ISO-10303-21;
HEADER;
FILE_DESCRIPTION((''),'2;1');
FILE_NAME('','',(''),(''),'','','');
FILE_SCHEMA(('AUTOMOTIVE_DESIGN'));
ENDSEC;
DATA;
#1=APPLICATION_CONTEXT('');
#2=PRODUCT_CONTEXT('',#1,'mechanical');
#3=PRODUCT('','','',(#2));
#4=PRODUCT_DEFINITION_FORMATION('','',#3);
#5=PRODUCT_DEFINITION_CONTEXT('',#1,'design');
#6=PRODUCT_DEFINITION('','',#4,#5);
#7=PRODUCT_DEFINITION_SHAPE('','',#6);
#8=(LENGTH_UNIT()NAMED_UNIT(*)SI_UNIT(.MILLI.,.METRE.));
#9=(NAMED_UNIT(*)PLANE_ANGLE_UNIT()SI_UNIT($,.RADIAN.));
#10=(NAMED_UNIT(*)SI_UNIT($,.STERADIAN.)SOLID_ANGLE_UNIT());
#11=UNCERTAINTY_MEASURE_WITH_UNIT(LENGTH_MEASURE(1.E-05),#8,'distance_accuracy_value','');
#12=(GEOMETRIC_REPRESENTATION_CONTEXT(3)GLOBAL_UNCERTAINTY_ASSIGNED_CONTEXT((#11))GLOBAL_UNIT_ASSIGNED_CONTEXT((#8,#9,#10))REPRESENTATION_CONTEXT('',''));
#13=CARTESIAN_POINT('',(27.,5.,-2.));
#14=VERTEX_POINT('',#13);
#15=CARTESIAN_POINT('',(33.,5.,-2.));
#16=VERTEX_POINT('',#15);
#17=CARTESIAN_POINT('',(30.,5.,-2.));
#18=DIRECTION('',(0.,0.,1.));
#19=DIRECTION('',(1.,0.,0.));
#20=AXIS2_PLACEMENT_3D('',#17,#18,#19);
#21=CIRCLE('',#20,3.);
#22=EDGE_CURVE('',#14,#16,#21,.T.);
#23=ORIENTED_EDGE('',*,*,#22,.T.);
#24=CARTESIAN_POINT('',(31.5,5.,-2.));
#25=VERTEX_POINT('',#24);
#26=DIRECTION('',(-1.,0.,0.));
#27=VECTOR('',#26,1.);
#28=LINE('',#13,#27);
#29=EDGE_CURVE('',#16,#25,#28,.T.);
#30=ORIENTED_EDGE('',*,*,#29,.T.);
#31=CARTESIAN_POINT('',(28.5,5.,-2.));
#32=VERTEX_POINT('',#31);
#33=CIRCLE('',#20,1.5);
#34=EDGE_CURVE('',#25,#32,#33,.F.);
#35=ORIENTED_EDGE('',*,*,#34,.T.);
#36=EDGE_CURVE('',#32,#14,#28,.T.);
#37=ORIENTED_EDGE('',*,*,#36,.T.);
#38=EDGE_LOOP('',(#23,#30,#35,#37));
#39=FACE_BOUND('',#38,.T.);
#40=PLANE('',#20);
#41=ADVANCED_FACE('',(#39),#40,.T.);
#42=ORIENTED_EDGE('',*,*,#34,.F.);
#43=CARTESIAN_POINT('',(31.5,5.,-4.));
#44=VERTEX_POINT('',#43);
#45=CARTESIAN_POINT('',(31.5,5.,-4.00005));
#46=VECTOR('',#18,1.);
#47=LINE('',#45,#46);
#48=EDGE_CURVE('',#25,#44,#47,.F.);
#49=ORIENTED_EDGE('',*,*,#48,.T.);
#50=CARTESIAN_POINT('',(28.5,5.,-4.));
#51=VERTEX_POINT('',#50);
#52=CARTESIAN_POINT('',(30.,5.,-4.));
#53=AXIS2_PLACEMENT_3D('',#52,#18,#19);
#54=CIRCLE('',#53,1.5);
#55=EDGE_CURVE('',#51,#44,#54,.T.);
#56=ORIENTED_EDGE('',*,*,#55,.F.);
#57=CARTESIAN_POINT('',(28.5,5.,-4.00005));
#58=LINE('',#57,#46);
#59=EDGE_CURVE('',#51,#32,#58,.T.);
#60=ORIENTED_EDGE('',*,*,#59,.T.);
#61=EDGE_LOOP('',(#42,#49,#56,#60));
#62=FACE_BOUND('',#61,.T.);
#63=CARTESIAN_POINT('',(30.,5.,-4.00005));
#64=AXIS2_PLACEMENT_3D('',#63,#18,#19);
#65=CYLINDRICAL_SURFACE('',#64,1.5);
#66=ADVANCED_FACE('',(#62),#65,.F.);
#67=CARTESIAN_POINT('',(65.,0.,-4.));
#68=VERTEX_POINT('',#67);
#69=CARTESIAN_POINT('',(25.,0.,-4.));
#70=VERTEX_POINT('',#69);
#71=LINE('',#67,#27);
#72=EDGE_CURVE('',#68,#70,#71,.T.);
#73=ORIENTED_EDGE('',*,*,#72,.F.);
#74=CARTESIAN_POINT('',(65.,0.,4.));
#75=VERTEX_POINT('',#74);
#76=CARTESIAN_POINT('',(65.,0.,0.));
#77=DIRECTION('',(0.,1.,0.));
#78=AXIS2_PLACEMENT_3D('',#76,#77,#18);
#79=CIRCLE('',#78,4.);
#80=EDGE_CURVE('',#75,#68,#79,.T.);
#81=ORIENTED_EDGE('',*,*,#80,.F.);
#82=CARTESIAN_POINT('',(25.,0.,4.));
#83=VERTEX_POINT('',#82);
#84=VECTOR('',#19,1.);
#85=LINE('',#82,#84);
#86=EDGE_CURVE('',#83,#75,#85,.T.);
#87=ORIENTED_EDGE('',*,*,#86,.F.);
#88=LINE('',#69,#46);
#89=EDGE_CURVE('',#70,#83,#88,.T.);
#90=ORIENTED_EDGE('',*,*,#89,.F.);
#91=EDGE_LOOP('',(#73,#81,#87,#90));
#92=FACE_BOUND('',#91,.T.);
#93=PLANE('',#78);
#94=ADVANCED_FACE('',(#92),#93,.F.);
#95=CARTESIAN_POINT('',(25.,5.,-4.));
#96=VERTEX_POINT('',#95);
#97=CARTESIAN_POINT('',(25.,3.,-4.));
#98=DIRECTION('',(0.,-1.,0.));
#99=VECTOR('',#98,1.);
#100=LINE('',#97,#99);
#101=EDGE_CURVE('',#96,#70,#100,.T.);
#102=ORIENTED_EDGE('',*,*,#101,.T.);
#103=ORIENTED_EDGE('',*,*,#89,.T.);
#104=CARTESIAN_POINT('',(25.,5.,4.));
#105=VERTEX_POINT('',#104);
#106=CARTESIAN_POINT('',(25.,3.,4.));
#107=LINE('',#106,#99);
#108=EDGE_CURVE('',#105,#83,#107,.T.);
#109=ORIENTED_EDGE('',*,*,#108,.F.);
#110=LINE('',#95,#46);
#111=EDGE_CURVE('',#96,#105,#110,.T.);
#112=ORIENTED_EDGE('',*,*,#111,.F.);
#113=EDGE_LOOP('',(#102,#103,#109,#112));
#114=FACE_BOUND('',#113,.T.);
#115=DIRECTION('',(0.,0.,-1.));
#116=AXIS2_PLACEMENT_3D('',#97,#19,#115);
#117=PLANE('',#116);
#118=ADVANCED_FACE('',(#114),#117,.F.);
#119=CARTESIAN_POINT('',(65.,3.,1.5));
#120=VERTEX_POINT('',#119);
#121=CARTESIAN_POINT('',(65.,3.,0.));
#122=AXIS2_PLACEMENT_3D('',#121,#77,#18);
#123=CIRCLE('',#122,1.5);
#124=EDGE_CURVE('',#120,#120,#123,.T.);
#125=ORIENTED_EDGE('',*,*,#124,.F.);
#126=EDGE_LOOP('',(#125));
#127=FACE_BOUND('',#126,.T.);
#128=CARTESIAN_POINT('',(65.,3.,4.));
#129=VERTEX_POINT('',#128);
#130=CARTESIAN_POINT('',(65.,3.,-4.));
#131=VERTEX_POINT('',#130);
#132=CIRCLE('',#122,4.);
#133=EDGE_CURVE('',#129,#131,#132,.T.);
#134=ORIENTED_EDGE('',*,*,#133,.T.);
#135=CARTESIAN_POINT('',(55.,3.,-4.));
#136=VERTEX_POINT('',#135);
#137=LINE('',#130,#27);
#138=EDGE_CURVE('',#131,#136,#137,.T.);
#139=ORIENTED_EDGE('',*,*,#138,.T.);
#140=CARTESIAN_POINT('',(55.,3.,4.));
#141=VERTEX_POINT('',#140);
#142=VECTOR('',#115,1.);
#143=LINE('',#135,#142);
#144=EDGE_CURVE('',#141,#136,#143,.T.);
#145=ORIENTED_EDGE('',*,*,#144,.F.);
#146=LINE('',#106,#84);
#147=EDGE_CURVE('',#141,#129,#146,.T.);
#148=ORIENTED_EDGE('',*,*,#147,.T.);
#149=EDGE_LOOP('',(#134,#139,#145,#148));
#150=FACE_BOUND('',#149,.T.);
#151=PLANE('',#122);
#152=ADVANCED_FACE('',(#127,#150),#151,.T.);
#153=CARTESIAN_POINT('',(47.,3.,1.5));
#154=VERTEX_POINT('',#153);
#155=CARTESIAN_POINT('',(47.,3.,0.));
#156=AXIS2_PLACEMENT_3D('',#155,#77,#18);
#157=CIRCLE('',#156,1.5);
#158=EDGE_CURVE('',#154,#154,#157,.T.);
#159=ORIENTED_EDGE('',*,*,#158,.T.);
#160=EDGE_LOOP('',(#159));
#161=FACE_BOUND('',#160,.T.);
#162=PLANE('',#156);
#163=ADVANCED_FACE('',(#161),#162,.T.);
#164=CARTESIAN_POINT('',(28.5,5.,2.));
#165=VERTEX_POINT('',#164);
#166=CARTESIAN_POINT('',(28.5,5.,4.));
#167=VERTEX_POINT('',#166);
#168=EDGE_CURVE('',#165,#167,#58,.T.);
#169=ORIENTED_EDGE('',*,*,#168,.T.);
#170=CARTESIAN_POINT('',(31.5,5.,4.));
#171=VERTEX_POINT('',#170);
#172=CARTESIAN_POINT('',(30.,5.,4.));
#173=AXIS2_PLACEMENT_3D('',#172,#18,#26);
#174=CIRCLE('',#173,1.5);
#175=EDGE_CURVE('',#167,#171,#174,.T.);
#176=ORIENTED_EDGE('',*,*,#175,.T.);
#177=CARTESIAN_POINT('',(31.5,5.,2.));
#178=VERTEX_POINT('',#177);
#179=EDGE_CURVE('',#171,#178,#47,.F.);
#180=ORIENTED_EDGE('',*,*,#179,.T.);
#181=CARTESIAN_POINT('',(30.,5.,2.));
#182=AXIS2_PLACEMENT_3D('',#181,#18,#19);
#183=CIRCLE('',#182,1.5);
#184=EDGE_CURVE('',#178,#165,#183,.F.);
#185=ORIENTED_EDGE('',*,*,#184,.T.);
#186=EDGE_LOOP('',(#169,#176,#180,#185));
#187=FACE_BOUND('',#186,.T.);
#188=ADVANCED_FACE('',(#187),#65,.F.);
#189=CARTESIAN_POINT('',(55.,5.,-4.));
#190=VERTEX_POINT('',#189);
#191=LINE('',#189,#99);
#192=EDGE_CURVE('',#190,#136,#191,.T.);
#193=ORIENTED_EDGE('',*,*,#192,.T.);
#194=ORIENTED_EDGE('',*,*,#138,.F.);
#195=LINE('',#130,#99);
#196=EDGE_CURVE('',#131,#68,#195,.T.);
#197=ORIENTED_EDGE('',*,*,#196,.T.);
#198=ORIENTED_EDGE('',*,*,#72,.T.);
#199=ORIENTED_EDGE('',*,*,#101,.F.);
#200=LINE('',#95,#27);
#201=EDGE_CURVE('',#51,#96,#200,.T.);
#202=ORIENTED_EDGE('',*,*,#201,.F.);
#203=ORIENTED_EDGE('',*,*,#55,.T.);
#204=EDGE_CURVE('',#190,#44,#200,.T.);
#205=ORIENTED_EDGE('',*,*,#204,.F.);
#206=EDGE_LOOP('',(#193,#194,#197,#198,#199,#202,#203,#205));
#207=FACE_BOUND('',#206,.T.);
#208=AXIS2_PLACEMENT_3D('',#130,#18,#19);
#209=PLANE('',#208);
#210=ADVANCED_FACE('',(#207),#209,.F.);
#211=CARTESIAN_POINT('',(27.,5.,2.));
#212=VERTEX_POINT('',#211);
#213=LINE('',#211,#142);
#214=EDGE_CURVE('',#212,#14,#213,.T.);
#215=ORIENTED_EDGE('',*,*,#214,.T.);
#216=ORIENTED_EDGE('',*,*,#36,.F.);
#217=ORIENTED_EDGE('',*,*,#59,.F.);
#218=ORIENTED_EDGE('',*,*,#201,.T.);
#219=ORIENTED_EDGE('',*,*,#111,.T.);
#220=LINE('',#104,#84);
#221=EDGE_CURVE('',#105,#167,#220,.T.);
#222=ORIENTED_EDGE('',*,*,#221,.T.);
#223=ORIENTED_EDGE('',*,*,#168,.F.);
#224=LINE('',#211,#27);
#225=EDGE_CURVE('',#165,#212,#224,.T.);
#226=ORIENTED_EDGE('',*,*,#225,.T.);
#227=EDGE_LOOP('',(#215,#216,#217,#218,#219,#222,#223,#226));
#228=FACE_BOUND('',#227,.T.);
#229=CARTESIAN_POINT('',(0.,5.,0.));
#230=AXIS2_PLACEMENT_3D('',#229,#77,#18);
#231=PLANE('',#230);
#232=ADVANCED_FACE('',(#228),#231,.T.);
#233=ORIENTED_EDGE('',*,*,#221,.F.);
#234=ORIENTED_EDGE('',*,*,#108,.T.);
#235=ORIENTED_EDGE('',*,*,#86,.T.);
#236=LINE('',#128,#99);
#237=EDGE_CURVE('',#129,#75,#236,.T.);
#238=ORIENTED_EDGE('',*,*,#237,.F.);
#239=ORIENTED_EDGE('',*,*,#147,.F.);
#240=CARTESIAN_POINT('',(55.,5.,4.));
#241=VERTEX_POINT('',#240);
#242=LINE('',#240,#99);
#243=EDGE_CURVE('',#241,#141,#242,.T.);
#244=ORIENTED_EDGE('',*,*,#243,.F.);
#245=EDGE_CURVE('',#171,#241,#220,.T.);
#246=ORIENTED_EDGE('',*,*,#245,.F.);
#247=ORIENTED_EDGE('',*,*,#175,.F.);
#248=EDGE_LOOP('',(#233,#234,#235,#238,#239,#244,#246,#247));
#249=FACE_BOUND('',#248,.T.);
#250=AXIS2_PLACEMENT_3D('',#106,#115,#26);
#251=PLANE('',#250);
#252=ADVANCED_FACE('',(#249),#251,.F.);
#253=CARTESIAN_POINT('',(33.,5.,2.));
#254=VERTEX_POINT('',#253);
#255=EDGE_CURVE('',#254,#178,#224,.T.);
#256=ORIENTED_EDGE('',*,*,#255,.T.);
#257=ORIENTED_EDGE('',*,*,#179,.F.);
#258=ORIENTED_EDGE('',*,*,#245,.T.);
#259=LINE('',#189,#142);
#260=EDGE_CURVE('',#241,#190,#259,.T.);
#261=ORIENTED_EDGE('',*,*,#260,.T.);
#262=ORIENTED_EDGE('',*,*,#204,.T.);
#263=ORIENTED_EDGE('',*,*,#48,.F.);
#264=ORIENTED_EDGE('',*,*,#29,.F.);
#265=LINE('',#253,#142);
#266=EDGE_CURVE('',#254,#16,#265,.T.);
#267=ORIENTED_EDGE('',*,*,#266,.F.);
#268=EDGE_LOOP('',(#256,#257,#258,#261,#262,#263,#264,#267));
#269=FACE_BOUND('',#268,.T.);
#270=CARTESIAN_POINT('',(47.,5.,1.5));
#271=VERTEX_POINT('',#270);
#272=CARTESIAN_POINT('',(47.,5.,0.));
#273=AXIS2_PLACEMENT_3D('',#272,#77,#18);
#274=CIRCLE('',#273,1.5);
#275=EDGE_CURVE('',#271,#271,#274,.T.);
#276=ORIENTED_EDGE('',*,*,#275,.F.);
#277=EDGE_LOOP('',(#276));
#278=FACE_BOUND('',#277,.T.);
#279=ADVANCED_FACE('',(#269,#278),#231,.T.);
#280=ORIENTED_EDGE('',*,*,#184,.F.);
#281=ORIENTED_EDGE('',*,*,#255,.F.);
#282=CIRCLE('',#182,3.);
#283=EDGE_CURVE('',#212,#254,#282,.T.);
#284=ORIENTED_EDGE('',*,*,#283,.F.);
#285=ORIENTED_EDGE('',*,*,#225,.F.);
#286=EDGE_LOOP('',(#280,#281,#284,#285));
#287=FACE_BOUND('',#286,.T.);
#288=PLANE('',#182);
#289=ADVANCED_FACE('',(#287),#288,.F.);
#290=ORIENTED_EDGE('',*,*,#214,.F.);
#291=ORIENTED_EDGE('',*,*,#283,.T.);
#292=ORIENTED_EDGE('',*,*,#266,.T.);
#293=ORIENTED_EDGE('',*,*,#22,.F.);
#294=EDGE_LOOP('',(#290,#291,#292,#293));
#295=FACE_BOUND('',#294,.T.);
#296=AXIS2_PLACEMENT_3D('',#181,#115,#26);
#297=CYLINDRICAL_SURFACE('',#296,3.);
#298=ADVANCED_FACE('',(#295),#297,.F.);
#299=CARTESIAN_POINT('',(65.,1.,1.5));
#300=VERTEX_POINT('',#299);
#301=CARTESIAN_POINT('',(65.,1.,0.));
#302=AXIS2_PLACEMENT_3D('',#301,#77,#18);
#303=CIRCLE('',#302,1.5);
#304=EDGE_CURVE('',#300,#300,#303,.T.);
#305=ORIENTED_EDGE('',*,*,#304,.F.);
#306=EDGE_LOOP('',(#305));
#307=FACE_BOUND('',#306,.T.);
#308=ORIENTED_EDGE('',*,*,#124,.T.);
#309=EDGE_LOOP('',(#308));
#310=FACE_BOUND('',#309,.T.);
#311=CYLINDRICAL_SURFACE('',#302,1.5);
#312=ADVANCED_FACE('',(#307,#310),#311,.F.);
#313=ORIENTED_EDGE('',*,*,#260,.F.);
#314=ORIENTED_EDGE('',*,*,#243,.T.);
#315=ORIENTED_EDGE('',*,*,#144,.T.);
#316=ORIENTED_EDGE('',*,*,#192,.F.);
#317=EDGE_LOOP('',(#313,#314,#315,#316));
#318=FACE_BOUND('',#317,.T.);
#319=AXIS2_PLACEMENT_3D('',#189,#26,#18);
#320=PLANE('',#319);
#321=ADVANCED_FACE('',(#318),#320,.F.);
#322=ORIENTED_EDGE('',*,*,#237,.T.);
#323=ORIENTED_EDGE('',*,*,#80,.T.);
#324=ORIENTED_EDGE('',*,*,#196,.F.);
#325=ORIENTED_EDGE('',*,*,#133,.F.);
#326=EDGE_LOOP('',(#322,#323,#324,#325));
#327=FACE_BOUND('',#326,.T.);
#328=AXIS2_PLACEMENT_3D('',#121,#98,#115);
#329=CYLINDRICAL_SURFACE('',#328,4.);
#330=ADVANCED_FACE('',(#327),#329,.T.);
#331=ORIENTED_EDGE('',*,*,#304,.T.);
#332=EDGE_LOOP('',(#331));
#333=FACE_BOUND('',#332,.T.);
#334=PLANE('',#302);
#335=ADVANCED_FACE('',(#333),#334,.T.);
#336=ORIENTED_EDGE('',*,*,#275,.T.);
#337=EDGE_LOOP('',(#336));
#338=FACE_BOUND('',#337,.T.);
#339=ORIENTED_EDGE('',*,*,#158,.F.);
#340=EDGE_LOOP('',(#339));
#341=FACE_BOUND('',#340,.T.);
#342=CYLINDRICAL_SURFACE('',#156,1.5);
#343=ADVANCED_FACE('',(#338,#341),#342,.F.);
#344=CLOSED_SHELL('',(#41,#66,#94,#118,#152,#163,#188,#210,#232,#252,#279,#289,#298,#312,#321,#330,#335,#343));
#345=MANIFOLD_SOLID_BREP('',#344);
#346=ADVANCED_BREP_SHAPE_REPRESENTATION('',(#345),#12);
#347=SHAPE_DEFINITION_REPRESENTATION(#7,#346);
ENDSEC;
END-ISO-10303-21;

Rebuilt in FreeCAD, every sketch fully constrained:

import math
import FreeCAD as App
import Part
import Sketcher
Q = App.Units.Quantity


def add_polygon(sketch, points):
    """Adds a closed chain of lines whose ends are joined by coincident constraints."""
    first, n = sketch.GeometryCount, len(points)
    for a, b in zip(points, points[1:] + points[:1]):
        sketch.addGeometry(Part.LineSegment(App.Vector(*a, 0), App.Vector(*b, 0)), False)
    for i in range(n):
        sketch.addConstraint(Sketcher.Constraint("Coincident", first + i, 2, first + (i + 1) % n, 1))

doc = App.newDocument("Part")
body = doc.addObject("PartDesign::Body", "Body")

# Sketch on XZ plane
sketch1 = body.newObject("Sketcher::SketchObject", "Sketch")
sketch1.AttachmentSupport = (doc.getObject("XZ_Plane"), [""])
sketch1.MapMode = "FlatFace"
sketch1.addGeometry(Part.LineSegment(App.Vector(25, 4, 0), App.Vector(65, 4, 0)), False)
sketch1.addGeometry(Part.ArcOfCircle(Part.Circle(App.Vector(65, 0, 0), App.Vector(0, 0, 1), 4), math.radians(-90), math.radians(90)), False)
sketch1.addGeometry(Part.LineSegment(App.Vector(65, -4, 0), App.Vector(25, -4, 0)), False)
sketch1.addGeometry(Part.LineSegment(App.Vector(25, -4, 0), App.Vector(25, 4, 0)), False)
sketch1.addConstraint(Sketcher.Constraint("Tangent", 0, 2, 1, 2))
sketch1.addConstraint(Sketcher.Constraint("Tangent", 1, 1, 2, 1))
sketch1.addConstraint(Sketcher.Constraint("Coincident", 2, 2, 3, 1))
sketch1.addConstraint(Sketcher.Constraint("Coincident", 3, 2, 0, 1))
sketch1.addConstraint(Sketcher.Constraint("Horizontal", 0))
sketch1.addConstraint(Sketcher.Constraint("Horizontal", 2))
sketch1.addConstraint(Sketcher.Constraint("Vertical", 3))
sketch1.addConstraint(Sketcher.Constraint("PointOnObject", 1, 3, -1))
sketch1.addConstraint(Sketcher.Constraint("Radius", 1, Q("4 mm")))
sketch1.addConstraint(Sketcher.Constraint("DistanceX", 0, 1, 0, 2, Q("40 mm")))
sketch1.addConstraint(Sketcher.Constraint("DistanceX", -1, 1, 1, 3, Q("65 mm")))
pad1 = body.newObject("PartDesign::Pad", "Pad")
pad1.Profile = sketch1
pad1.Length = 3
pad1.Reversed = True

# Sketch on XZ plane
sketch2 = body.newObject("Sketcher::SketchObject", "Sketch001")
sketch2.AttachmentSupport = (doc.getObject("XZ_Plane"), [""])
sketch2.MapMode = "FlatFace"
sketch2.AttachmentOffset = App.Placement(App.Vector(0, 0, -3), App.Rotation())
add_polygon(sketch2, [(25, -4), (25, 4), (55, 4), (55, -4)])  # lines 0-3
sketch2.addConstraint(Sketcher.Constraint("Vertical", 0))
sketch2.addConstraint(Sketcher.Constraint("Horizontal", 1))
sketch2.addConstraint(Sketcher.Constraint("Vertical", 2))
sketch2.addConstraint(Sketcher.Constraint("Horizontal", 3))
sketch2.addConstraint(Sketcher.Constraint("DistanceX", 1, 1, 1, 2, Q("30 mm")))
sketch2.addConstraint(Sketcher.Constraint("DistanceY", 0, 1, 0, 2, Q("8 mm")))
sketch2.addConstraint(Sketcher.Constraint("DistanceX", -1, 1, 0, 2, Q("25 mm")))
sketch2.addConstraint(Sketcher.Constraint("DistanceY", -1, 1, 0, 2, Q("4 mm")))
pad2 = body.newObject("PartDesign::Pad", "Pad001")
pad2.Profile = sketch2
pad2.Length = 2
pad2.Reversed = True

# Sketch on XY plane
sketch3 = body.newObject("Sketcher::SketchObject", "Sketch002")
sketch3.AttachmentSupport = (doc.getObject("XY_Plane"), [""])
sketch3.MapMode = "FlatFace"
sketch3.AttachmentOffset = App.Placement(App.Vector(0, 0, 4), App.Rotation())
sketch3.addGeometry(Part.LineSegment(App.Vector(31.5, 5, 0), App.Vector(28.5, 5, 0)), False)
sketch3.addGeometry(Part.ArcOfCircle(Part.Circle(App.Vector(30, 5, 0), App.Vector(0, 0, 1), 1.5), math.radians(180), math.radians(360)), False)
sketch3.addConstraint(Sketcher.Constraint("Coincident", 0, 1, 1, 2))
sketch3.addConstraint(Sketcher.Constraint("Coincident", 1, 1, 0, 2))
sketch3.addConstraint(Sketcher.Constraint("Horizontal", 0))
sketch3.addConstraint(Sketcher.Constraint("Horizontal", 1, 3, 0, 1))
sketch3.addConstraint(Sketcher.Constraint("Radius", 1, Q("1.5 mm")))
sketch3.addConstraint(Sketcher.Constraint("DistanceX", -1, 1, 1, 3, Q("30 mm")))
sketch3.addConstraint(Sketcher.Constraint("DistanceY", -1, 1, 1, 3, Q("5 mm")))
pocket1 = body.newObject("PartDesign::Pocket", "Pocket")
pocket1.Profile = sketch3
pocket1.Type = "ThroughAll"

# Sketch on XY plane
sketch4 = body.newObject("Sketcher::SketchObject", "Sketch003")
sketch4.AttachmentSupport = (doc.getObject("XY_Plane"), [""])
sketch4.MapMode = "FlatFace"
sketch4.addGeometry(Part.LineSegment(App.Vector(33, 5, 0), App.Vector(27, 5, 0)), False)
sketch4.addGeometry(Part.ArcOfCircle(Part.Circle(App.Vector(30, 5, 0), App.Vector(0, 0, 1), 3), math.radians(180), math.radians(360)), False)
sketch4.addConstraint(Sketcher.Constraint("Coincident", 0, 1, 1, 2))
sketch4.addConstraint(Sketcher.Constraint("Coincident", 1, 1, 0, 2))
sketch4.addConstraint(Sketcher.Constraint("Horizontal", 0))
sketch4.addConstraint(Sketcher.Constraint("Horizontal", 1, 3, 0, 1))
sketch4.addConstraint(Sketcher.Constraint("Radius", 1, Q("3 mm")))
sketch4.addConstraint(Sketcher.Constraint("DistanceX", -1, 1, 1, 3, Q("30 mm")))
sketch4.addConstraint(Sketcher.Constraint("DistanceY", -1, 1, 1, 3, Q("5 mm")))
pocket2 = body.newObject("PartDesign::Pocket", "Pocket001")
pocket2.Profile = sketch4
pocket2.Type = "TwoLengths"
pocket2.Length = 2
pocket2.Length2 = 2
pocket2.Reversed = True

# Sketch on XZ plane
sketch5 = body.newObject("Sketcher::SketchObject", "Sketch004")
sketch5.AttachmentSupport = (doc.getObject("XZ_Plane"), [""])
sketch5.MapMode = "FlatFace"
sketch5.AttachmentOffset = App.Placement(App.Vector(0, 0, -3), App.Rotation())
sketch5.addGeometry(Part.Circle(App.Vector(65, 0, 0), App.Vector(0, 0, 1), 1.5), False)
sketch5.addConstraint(Sketcher.Constraint("PointOnObject", 0, 3, -1))
sketch5.addConstraint(Sketcher.Constraint("Diameter", 0, Q("3 mm")))
sketch5.addConstraint(Sketcher.Constraint("DistanceX", -1, 1, 0, 3, Q("65 mm")))
pocket3 = body.newObject("PartDesign::Pocket", "Pocket002")
pocket3.Profile = sketch5
pocket3.Length = 2
pocket3.Reversed = True

# Sketch on XZ plane
sketch6 = body.newObject("Sketcher::SketchObject", "Sketch005")
sketch6.AttachmentSupport = (doc.getObject("XZ_Plane"), [""])
sketch6.MapMode = "FlatFace"
sketch6.AttachmentOffset = App.Placement(App.Vector(0, 0, -5), App.Rotation())
sketch6.addGeometry(Part.Circle(App.Vector(47, 0, 0), App.Vector(0, 0, 1), 1.5), False)
sketch6.addConstraint(Sketcher.Constraint("PointOnObject", 0, 3, -1))
sketch6.addConstraint(Sketcher.Constraint("Diameter", 0, Q("3 mm")))
sketch6.addConstraint(Sketcher.Constraint("DistanceX", -1, 1, 0, 3, Q("47 mm")))
pocket4 = body.newObject("PartDesign::Pocket", "Pocket003")
pocket4.Profile = sketch6
pocket4.Length = 2
pocket4.Reversed = True

doc.recompute()
